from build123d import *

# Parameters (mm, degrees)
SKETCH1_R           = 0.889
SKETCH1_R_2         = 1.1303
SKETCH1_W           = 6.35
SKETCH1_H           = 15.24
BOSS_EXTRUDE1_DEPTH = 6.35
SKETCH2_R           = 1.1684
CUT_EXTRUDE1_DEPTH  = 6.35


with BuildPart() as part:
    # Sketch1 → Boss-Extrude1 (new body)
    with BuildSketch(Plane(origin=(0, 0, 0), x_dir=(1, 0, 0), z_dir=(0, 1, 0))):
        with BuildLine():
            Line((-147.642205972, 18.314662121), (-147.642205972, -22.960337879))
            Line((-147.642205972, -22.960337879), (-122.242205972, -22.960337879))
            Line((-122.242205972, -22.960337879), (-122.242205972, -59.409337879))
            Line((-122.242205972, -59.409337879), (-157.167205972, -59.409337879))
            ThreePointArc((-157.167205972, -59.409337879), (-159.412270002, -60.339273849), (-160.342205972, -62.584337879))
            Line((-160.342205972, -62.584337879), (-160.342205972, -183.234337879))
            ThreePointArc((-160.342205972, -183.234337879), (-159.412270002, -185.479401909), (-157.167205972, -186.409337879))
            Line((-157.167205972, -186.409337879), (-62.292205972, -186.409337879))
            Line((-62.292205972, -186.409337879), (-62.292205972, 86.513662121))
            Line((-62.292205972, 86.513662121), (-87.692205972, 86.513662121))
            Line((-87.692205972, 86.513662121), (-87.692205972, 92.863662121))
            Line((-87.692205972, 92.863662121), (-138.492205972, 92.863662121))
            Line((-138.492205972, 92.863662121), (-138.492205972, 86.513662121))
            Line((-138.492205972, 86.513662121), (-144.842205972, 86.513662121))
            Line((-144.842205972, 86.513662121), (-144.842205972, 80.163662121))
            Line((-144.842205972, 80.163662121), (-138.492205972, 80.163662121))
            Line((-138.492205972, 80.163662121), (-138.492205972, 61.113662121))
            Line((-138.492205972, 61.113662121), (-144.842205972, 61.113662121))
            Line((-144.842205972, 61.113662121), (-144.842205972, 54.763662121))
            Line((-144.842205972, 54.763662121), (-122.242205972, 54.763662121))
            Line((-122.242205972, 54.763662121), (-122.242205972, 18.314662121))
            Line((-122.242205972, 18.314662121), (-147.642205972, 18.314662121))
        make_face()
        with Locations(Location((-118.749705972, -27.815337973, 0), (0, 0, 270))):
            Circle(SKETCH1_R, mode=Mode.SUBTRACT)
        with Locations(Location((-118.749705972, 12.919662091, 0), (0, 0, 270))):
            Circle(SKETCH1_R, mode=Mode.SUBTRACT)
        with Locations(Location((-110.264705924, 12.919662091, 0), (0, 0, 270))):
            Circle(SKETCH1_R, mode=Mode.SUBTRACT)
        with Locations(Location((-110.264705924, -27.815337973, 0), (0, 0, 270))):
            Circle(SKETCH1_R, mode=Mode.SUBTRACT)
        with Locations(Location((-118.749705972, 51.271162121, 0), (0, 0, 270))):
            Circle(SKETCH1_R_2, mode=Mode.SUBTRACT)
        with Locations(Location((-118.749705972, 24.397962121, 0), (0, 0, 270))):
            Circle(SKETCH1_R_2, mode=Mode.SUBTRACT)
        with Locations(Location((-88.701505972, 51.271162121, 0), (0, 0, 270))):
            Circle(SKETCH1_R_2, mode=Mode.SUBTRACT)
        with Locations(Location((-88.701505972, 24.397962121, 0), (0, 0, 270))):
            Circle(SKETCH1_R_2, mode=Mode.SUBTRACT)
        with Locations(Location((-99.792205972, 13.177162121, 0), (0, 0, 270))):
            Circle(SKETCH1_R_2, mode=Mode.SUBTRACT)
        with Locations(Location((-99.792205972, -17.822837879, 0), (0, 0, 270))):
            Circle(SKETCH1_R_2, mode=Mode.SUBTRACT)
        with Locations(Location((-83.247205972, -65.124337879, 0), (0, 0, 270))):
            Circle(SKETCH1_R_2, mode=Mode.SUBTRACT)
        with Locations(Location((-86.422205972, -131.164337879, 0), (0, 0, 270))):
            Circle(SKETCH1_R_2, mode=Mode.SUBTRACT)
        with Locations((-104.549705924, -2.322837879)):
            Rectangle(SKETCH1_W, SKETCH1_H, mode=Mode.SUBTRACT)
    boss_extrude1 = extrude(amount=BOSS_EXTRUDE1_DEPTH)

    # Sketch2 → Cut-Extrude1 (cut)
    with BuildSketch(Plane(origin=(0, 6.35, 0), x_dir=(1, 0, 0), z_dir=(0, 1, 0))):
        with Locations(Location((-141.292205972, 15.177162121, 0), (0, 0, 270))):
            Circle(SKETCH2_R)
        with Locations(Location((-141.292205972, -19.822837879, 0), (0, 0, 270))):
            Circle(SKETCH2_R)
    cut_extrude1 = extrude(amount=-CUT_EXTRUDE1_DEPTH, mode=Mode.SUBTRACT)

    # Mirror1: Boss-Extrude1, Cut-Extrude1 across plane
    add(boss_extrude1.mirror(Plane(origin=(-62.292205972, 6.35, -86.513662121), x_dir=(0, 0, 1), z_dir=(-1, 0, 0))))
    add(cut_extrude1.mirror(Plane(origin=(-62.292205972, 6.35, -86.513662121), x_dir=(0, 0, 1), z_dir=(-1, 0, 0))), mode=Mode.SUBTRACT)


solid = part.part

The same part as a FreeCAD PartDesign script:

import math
import FreeCAD as App
import Part
import Sketcher
Q = App.Units.Quantity


def add_polygon(sketch, points):
    """Adds a closed chain of lines whose ends are joined by coincident constraints."""
    first, n = sketch.GeometryCount, len(points)
    for a, b in zip(points, points[1:] + points[:1]):
        sketch.addGeometry(Part.LineSegment(App.Vector(*a, 0), App.Vector(*b, 0)), False)
    for i in range(n):
        sketch.addConstraint(Sketcher.Constraint("Coincident", first + i, 2, first + (i + 1) % n, 1))

doc = App.newDocument("Part")
body = doc.addObject("PartDesign::Body", "Body")

sketch1 = body.newObject("Sketcher::SketchObject", "Sketch")
sketch1.AttachmentSupport = (doc.getObject("XZ_Plane"), [""])
sketch1.MapMode = "FlatFace"
sketch1.addGeometry(Part.LineSegment(App.Vector(-147.6, -18.3, 0), App.Vector(-147.6, 23, 0)), False)
sketch1.addGeometry(Part.LineSegment(App.Vector(-147.6, 23, 0), App.Vector(-122.2, 23, 0)), False)
sketch1.addGeometry(Part.LineSegment(App.Vector(-122.2, 23, 0), App.Vector(-122.2, 59.4, 0)), False)
sketch1.addGeometry(Part.LineSegment(App.Vector(-122.2, 59.4, 0), App.Vector(-157.2, 59.4, 0)), False)
sketch1.addGeometry(Part.ArcOfCircle(Part.Circle(App.Vector(-157.2, 62.6, 0), App.Vector(0, 0, 1), 3.2), math.radians(-180), math.radians(-90)), False)
sketch1.addGeometry(Part.LineSegment(App.Vector(-160.3, 62.6, 0), App.Vector(-160.3, 183.2, 0)), False)
sketch1.addGeometry(Part.ArcOfCircle(Part.Circle(App.Vector(-157.2, 183.2, 0), App.Vector(0, 0, 1), 3.2), math.radians(90), math.radians(180)), False)
sketch1.addGeometry(Part.LineSegment(App.Vector(-157.2, 186.4, 0), App.Vector(-62.3, 186.4, 0)), False)
sketch1.addGeometry(Part.LineSegment(App.Vector(-62.3, 186.4, 0), App.Vector(-62.3, -86.5, 0)), False)
sketch1.addGeometry(Part.LineSegment(App.Vector(-62.3, -86.5, 0), App.Vector(-87.7, -86.5, 0)), False)
sketch1.addGeometry(Part.LineSegment(App.Vector(-87.7, -86.5, 0), App.Vector(-87.7, -92.9, 0)), False)
sketch1.addGeometry(Part.LineSegment(App.Vector(-87.7, -92.9, 0), App.Vector(-138.5, -92.9, 0)), False)
sketch1.addGeometry(Part.LineSegment(App.Vector(-138.5, -92.9, 0), App.Vector(-138.5, -86.5, 0)), False)
sketch1.addGeometry(Part.LineSegment(App.Vector(-138.5, -86.5, 0), App.Vector(-144.8, -86.5, 0)), False)
sketch1.addGeometry(Part.LineSegment(App.Vector(-144.8, -86.5, 0), App.Vector(-144.8, -80.2, 0)), False)
sketch1.addGeometry(Part.LineSegment(App.Vector(-144.8, -80.2, 0), App.Vector(-138.5, -80.2, 0)), False)
sketch1.addGeometry(Part.LineSegment(App.Vector(-138.5, -80.2, 0), App.Vector(-138.5, -61.1, 0)), False)
sketch1.addGeometry(Part.LineSegment(App.Vector(-138.5, -61.1, 0), App.Vector(-144.8, -61.1, 0)), False)
sketch1.addGeometry(Part.LineSegment(App.Vector(-144.8, -61.1, 0), App.Vector(-144.8, -54.8, 0)), False)
sketch1.addGeometry(Part.LineSegment(App.Vector(-144.8, -54.8, 0), App.Vector(-122.2, -54.8, 0)), False)
sketch1.addGeometry(Part.LineSegment(App.Vector(-122.2, -54.8, 0), App.Vector(-122.2, -18.3, 0)), False)
sketch1.addGeometry(Part.LineSegment(App.Vector(-122.2, -18.3, 0), App.Vector(-147.6, -18.3, 0)), False)
sketch1.addGeometry(Part.Circle(App.Vector(-86.4, 131.2, 0), App.Vector(0, 0, 1), 1.1), False)
sketch1.addGeometry(Part.Circle(App.Vector(-83.2, 65.1, 0), App.Vector(0, 0, 1), 1.1), False)
sketch1.addGeometry(Part.Circle(App.Vector(-118.7, 27.8, 0), App.Vector(0, 0, 1), 0.9), False)
sketch1.addGeometry(Part.Circle(App.Vector(-110.3, 27.8, 0), App.Vector(0, 0, 1), 0.9), False)
add_polygon(sketch1, [(-101.4, 9.9), (-107.7, 9.9), (-107.7, -5.3), (-101.4, -5.3)])
sketch1.addGeometry(Part.Circle(App.Vector(-118.7, -12.9, 0), App.Vector(0, 0, 1), 0.9), False)
sketch1.addGeometry(Part.Circle(App.Vector(-118.7, -24.4, 0), App.Vector(0, 0, 1), 1.1), False)
sketch1.addGeometry(Part.Circle(App.Vector(-118.7, -51.3, 0), App.Vector(0, 0, 1), 1.1), False)
sketch1.addGeometry(Part.Circle(App.Vector(-110.3, -12.9, 0), App.Vector(0, 0, 1), 0.9), False)
sketch1.addGeometry(Part.Circle(App.Vector(-99.8, 17.8, 0), App.Vector(0, 0, 1), 1.1), False)
sketch1.addGeometry(Part.Circle(App.Vector(-99.8, -13.2, 0), App.Vector(0, 0, 1), 1.1), False)
sketch1.addGeometry(Part.Circle(App.Vector(-88.7, -24.4, 0), App.Vector(0, 0, 1), 1.1), False)
sketch1.addGeometry(Part.Circle(App.Vector(-88.7, -51.3, 0), App.Vector(0, 0, 1), 1.1), False)
sketch1.addConstraint([
    Sketcher.Constraint("Coincident", 0, 2, 1, 1),
    Sketcher.Constraint("Coincident", 1, 2, 2, 1),
    Sketcher.Constraint("Coincident", 2, 2, 3, 1),
    Sketcher.Constraint("Tangent", 3, 2, 4, 2),
    Sketcher.Constraint("Tangent", 4, 1, 5, 1),
    Sketcher.Constraint("Tangent", 5, 2, 6, 2),
    Sketcher.Constraint("Tangent", 6, 1, 7, 1),
    Sketcher.Constraint("Coincident", 7, 2, 8, 1),
    Sketcher.Constraint("Coincident", 8, 2, 9, 1),
    Sketcher.Constraint("Coincident", 9, 2, 10, 1),
    Sketcher.Constraint("Coincident", 10, 2, 11, 1),
    Sketcher.Constraint("Coincident", 11, 2, 12, 1),
    Sketcher.Constraint("Coincident", 12, 2, 13, 1),
    Sketcher.Constraint("Coincident", 13, 2, 14, 1),
    Sketcher.Constraint("Coincident", 14, 2, 15, 1),
    Sketcher.Constraint("Coincident", 15, 2, 16, 1),
    Sketcher.Constraint("Coincident", 16, 2, 17, 1),
    Sketcher.Constraint("Coincident", 17, 2, 18, 1),
    Sketcher.Constraint("Coincident", 18, 2, 19, 1),
    Sketcher.Constraint("Coincident", 19, 2, 20, 1),
    Sketcher.Constraint("Coincident", 20, 2, 21, 1),
    Sketcher.Constraint("Coincident", 21, 2, 0, 1),
    Sketcher.Constraint("Vertical", 0),
    Sketcher.Constraint("Horizontal", 1),
    Sketcher.Constraint("Vertical", 2),
    Sketcher.Constraint("Horizontal", 3),
    Sketcher.Constraint("Vertical", 5),
    Sketcher.Constraint("Horizontal", 7),
    Sketcher.Constraint("Vertical", 8),
    Sketcher.Constraint("Horizontal", 9),
    Sketcher.Constraint("Vertical", 10),
    Sketcher.Constraint("Horizontal", 11),
    Sketcher.Constraint("Vertical", 12),
    Sketcher.Constraint("Horizontal", 13),
    Sketcher.Constraint("Vertical", 14),
    Sketcher.Constraint("Horizontal", 15),
    Sketcher.Constraint("Vertical", 16),
    Sketcher.Constraint("Horizontal", 17),
    Sketcher.Constraint("Vertical", 18),
    Sketcher.Constraint("Horizontal", 19),
    Sketcher.Constraint("Vertical", 20),
    Sketcher.Constraint("Horizontal", 21),
    Sketcher.Constraint("Horizontal", 26),
    Sketcher.Constraint("Vertical", 27),
    Sketcher.Constraint("Horizontal", 28),
    Sketcher.Constraint("Vertical", 29),
    Sketcher.Constraint("Equal", 4, 6),
    Sketcher.Constraint("Equal", 22, 23),
    Sketcher.Constraint("Equal", 24, 25),
    Sketcher.Constraint("Equal", 25, 30),
    Sketcher.Constraint("Equal", 23, 31),
    Sketcher.Constraint("Equal", 31, 32),
    Sketcher.Constraint("Equal", 30, 33),
    Sketcher.Constraint("Equal", 32, 34),
    Sketcher.Constraint("Equal", 34, 35),
    Sketcher.Constraint("Equal", 35, 36),
    Sketcher.Constraint("Equal", 36, 37),
    Sketcher.Constraint("Horizontal", 24, 3, 25, 3),
    Sketcher.Constraint("Horizontal", 30, 3, 33, 3),
    Sketcher.Constraint("Horizontal", 31, 3, 36, 3),
    Sketcher.Constraint("Horizontal", 32, 3, 37, 3),
    Sketcher.Constraint("Horizontal", 9, 2, 12, 2),
    Sketcher.Constraint("Vertical", 24, 3, 30, 3),
    Sketcher.Constraint("Vertical", 30, 3, 31, 3),
    Sketcher.Constraint("Vertical", 31, 3, 32, 3),
    Sketcher.Constraint("Vertical", 25, 3, 33, 3),
    Sketcher.Constraint("Vertical", 34, 3, 35, 3),
    Sketcher.Constraint("Vertical", 36, 3, 37, 3),
    Sketcher.Constraint("Vertical", 12, 2, 15, 2),
    Sketcher.Constraint("Vertical", 14, 2, 17, 2),
    Sketcher.Constraint("Vertical", 2, 2, 19, 2),
    Sketcher.Constraint("Equal", 1, 9),
    Sketcher.Constraint("Equal", 17, 26),
    Sketcher.Constraint("Equal", 28, 10),
    Sketcher.Constraint("Equal", 12, 14),
    Sketcher.Constraint("Equal", 14, 18),
    Sketcher.Constraint("Equal", 2, 20),
    Sketcher.Constraint("Diameter", 24, Q("0.07 in")),
    Sketcher.Constraint("DistanceX", 1, 1, 1, 2, Q("1 in")),
    Sketcher.Constraint("DistanceX", 11, 2, 11, 1, Q("2 in")),
    Sketcher.Constraint("Diameter", 22, Q("0.089 in")),
    Sketcher.Constraint("DistanceY", 27, 2, 27, 1, Q("0.6 in")),
    Sketcher.Constraint("Radius", 4, Q("0.125 in")),
    Sketcher.Constraint("DistanceY", 12, 2, 16, 2, Q("1 in")),
    Sketcher.Constraint("DistanceX", 13, 2, 13, 1, Q("0.25 in")),
    Sketcher.Constraint("DistanceY", 5, 1, 5, 2, Q("4.75 in")),
    Sketcher.Constraint("DistanceY", 4, 3, 22, 3, Q("2.7 in")),
    Sketcher.Constraint("DistanceY", 23, 3, 22, 3, Q("2.6 in")),
    Sketcher.Constraint("DistanceX", 4, 1, 2, 2, Q("1.5 in")),
    Sketcher.Constraint("DistanceX", 25, 3, 26, 2, Q("0.1 in")),
    Sketcher.Constraint("DistanceY", 0, 1, 0, 2, Q("1.625 in")),
    Sketcher.Constraint("DistanceY", 2, 1, 2, 2, Q("1.435 in")),
    Sketcher.Constraint("DistanceX", 22, 3, 7, 2, Q("0.95 in")),
    Sketcher.Constraint("DistanceX", 22, 3, 23, 3, Q("0.125 in")),
    Sketcher.Constraint("DistanceY", 32, 3, 31, 3, Q("1.058 in")),
    Sketcher.Constraint("DistanceX", 31, 3, 36, 3, Q("1.183 in")),
    Sketcher.Constraint("DistanceX", 7, 1, 7, 2, Q("94.875 mm")),
    Sketcher.Constraint("DistanceX", 4, 3, 24, 3, Q("1.5125 in")),
    Sketcher.Constraint("DistanceY", 31, 3, 4, 3, Q("3.4245 in")),
    Sketcher.Constraint("DistanceY", 26, 2, 1, 2, Q("0.5125 in")),
    Sketcher.Constraint("DistanceY", 24, 3, 23, 3, Q("37.309 mm")),
    Sketcher.Constraint("DistanceX", 24, 3, 25, 3, Q("8.485 mm")),
    Sketcher.Constraint("DistanceY", 30, 3, 24, 3, Q("40.735 mm")),
    Sketcher.Constraint("DistanceX", 25, 3, 34, 3, Q("10.4725 mm")),
    Sketcher.Constraint("DistanceY", 34, 3, 25, 3, Q("9.9925 mm")),
    Sketcher.Constraint("DistanceY", 35, 3, 33, 3, Q("0.2575 mm")),
    Sketcher.Constraint("DistanceX", 4, 3, -1, 1, Q("157.167206 mm")),
    Sketcher.Constraint("DistanceY", -1, 1, 4, 3, Q("62.584338 mm")),
])
pad1 = body.newObject("PartDesign::Pad", "Pad")
pad1.Profile = sketch1
pad1.Length = Q("0.25 in")
pad1.Reversed = True

sketch2 = body.newObject("Sketcher::SketchObject", "Sketch001")
sketch2.AttachmentSupport = (doc.getObject("XZ_Plane"), [""])
sketch2.MapMode = "FlatFace"
sketch2.AttachmentOffset = App.Placement(App.Vector(0, 0, -0.25 * 25.4), App.Rotation())
sketch2.addGeometry([
    Part.Circle(App.Vector(-141.3, -15.2, 0), App.Vector(0, 0, 1), 1.2),
    Part.Circle(App.Vector(-141.3, 19.8, 0), App.Vector(0, 0, 1), 1.2),
], False)
sketch2.addConstraint([
    Sketcher.Constraint("Equal", 0, 1),
    Sketcher.Constraint("Vertical", 0, 3, 1, 3),
    Sketcher.Constraint("Diameter", 0, Q("0.092 in")),
    Sketcher.Constraint("DistanceY", 0, 3, 1, 3, Q("35 mm")),
    Sketcher.Constraint("DistanceX", 0, 3, -1, 1, Q("141.292206 mm")),
    Sketcher.Constraint("DistanceY", 0, 3, -1, 1, Q("15.177162 mm")),
])
pocket1 = body.newObject("PartDesign::Pocket", "Pocket")
pocket1.Profile = sketch2
pocket1.Length = Q("0.25 in")
pocket1.Reversed = True
doc.recompute()

datumplane = body.newObject("PartDesign::Plane", "DatumPlane")
datumplane.AttachmentSupport = (doc.getObject("YZ_Plane"), [""])
datumplane.MapMode = "FlatFace"
datumplane.AttachmentOffset = App.Placement(App.Vector(0, 0, -62.292206), App.Rotation())
mirrored = body.newObject("PartDesign::Mirrored", "Mirrored")
mirrored.Originals = [pad1, pocket1]
mirrored.MirrorPlane = (datumplane, [""])
body.Tip = mirrored

doc.recompute()
